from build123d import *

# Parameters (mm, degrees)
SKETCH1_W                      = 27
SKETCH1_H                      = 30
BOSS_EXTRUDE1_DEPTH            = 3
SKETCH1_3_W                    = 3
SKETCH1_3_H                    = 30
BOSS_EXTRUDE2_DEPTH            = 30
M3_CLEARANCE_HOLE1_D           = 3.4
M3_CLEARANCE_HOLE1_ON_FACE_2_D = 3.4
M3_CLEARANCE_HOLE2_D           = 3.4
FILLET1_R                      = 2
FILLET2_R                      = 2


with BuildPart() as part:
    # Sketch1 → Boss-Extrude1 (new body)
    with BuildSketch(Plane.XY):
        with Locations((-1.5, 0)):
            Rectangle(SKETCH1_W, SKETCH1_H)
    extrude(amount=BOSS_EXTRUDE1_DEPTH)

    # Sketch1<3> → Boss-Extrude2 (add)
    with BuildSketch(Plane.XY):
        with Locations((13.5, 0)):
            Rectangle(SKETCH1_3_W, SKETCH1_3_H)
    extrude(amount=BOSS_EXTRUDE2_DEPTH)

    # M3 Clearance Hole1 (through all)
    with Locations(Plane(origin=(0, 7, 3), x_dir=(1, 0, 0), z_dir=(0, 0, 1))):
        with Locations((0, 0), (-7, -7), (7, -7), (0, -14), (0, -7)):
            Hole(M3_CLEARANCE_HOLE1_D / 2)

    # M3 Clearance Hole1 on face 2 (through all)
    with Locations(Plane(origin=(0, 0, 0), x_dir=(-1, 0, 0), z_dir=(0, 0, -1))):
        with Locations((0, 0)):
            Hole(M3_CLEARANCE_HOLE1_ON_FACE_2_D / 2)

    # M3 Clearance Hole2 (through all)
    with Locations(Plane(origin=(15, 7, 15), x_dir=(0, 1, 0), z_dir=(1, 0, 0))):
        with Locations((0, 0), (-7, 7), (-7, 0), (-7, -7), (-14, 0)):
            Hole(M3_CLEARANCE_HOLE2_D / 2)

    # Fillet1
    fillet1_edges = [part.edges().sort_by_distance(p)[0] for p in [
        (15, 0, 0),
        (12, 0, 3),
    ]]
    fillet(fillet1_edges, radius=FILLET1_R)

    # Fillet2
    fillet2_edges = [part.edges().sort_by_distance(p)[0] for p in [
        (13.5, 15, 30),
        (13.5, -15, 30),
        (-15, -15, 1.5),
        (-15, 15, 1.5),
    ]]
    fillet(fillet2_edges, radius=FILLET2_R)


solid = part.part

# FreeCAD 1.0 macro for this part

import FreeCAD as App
import Part
import Sketcher


def edges_at(feature, points):
    """Names of the edges that pass closest to the given points."""
    edges = feature.Shape.Edges
    near = lambda p: min(range(len(edges)), key=lambda i: edges[i].distToShape(Part.Vertex(*p))[0])
    return sorted({f"Edge{near(p) + 1}" for p in points})


def add_polygon(sketch, points):
    """Adds a closed chain of lines whose ends are joined by coincident constraints."""
    first, n = sketch.GeometryCount, len(points)
    for a, b in zip(points, points[1:] + points[:1]):
        sketch.addGeometry(Part.LineSegment(App.Vector(*a, 0), App.Vector(*b, 0)), False)
    for i in range(n):
        sketch.addConstraint(Sketcher.Constraint("Coincident", first + i, 2, first + (i + 1) % n, 1))

doc = App.newDocument("Part")
params = doc.addObject("Spreadsheet::Sheet", "Params")
for row, (alias, value) in enumerate([
    ("sketch1_width", "27 mm"),
    ("sketch1_height", "30 mm"),
    ("pad1_length", "3 mm"),
    ("sketch2_width", "3 mm"),
    ("sketch2_height", "30 mm"),
    ("pad2_length", "30 mm"),
    ("sketch3_diameter", "3.4 mm"),
    ("hole_diameter", "3.4 mm"),
    ("sketch4_diameter", "3.4 mm"),
    ("hole2_diameter", "3.4 mm"),
    ("sketch5_diameter", "3.4 mm"),
    ("hole3_diameter", "3.4 mm"),
    ("fillet_radius", "2 mm"),
    ("fillet2_radius", "2 mm"),
], start=1):
    params.set(f"A{row}", alias)
    params.set(f"B{row}", "=" + value)
    params.setAlias(f"B{row}", alias)

body = doc.addObject("PartDesign::Body", "Body")

# Sketch on XY plane
sketch1 = body.newObject("Sketcher::SketchObject", "Sketch")
sketch1.AttachmentSupport = (doc.getObject("XY_Plane"), [""])
sketch1.MapMode = "FlatFace"
add_polygon(sketch1, [(-15, 15), (-15, -15), (12, -15), (12, 15)])  # lines 0-3
sketch1.addConstraint(Sketcher.Constraint("Vertical", 0))
sketch1.addConstraint(Sketcher.Constraint("Horizontal", 1))
sketch1.addConstraint(Sketcher.Constraint("Vertical", 2))
sketch1.addConstraint(Sketcher.Constraint("Horizontal", 3))
sketch1.addConstraint(Sketcher.Constraint("DistanceX", 1, 1, 1, 2, 27.0))
sketch1.addConstraint(Sketcher.Constraint("DistanceY", 0, 2, 0, 1, 30.0))
sketch1.addConstraint(Sketcher.Constraint("DistanceX", 0, 2, -1, 1, 15.0))
sketch1.addConstraint(Sketcher.Constraint("DistanceY", 0, 2, -1, 1, 15.0))
sketch1.setExpression("Constraints[8]", "Params.sketch1_width")
sketch1.setExpression("Constraints[9]", "Params.sketch1_height")
pad1 = body.newObject("PartDesign::Pad", "Pad")
pad1.Profile = sketch1
pad1.setExpression("Length", "Params.pad1_length")

# Sketch on XY plane
sketch2 = body.newObject("Sketcher::SketchObject", "Sketch001")
sketch2.AttachmentSupport = (doc.getObject("XY_Plane"), [""])
sketch2.MapMode = "FlatFace"
add_polygon(sketch2, [(12, 15), (12, -15), (15, -15), (15, 15)])  # lines 0-3
sketch2.addConstraint(Sketcher.Constraint("Vertical", 0))
sketch2.addConstraint(Sketcher.Constraint("Horizontal", 1))
sketch2.addConstraint(Sketcher.Constraint("Vertical", 2))
sketch2.addConstraint(Sketcher.Constraint("Horizontal", 3))
sketch2.addConstraint(Sketcher.Constraint("DistanceX", 1, 1, 1, 2, 3.0))
sketch2.addConstraint(Sketcher.Constraint("DistanceY", 0, 2, 0, 1, 30.0))
sketch2.addConstraint(Sketcher.Constraint("DistanceX", -1, 1, 0, 2, 12.0))
sketch2.addConstraint(Sketcher.Constraint("DistanceY", 0, 2, -1, 1, 15.0))
sketch2.setExpression("Constraints[8]", "Params.sketch2_width")
sketch2.setExpression("Constraints[9]", "Params.sketch2_height")
pad2 = body.newObject("PartDesign::Pad", "Pad001")
pad2.Profile = sketch2
pad2.setExpression("Length", "Params.pad2_length")

# Sketch on XY plane
sketch3 = body.newObject("Sketcher::SketchObject", "Sketch002")
sketch3.AttachmentSupport = (doc.getObject("XY_Plane"), [""])
sketch3.MapMode = "FlatFace"
sketch3.AttachmentOffset = App.Placement(App.Vector(0, 0, 3), App.Rotation())
sketch3.addGeometry(Part.Circle(App.Vector(0, 7, 0), App.Vector(0, 0, 1), 1.7), False)
sketch3.addGeometry(Part.Circle(App.Vector(-7, 0, 0), App.Vector(0, 0, 1), 1.7), False)
sketch3.addGeometry(Part.Circle(App.Vector(7, 0, 0), App.Vector(0, 0, 1), 1.7), False)
sketch3.addGeometry(Part.Circle(App.Vector(0, -7, 0), App.Vector(0, 0, 1), 1.7), False)
sketch3.addGeometry(Part.Circle(App.Vector(0, 0, 0), App.Vector(0, 0, 1), 1.7), False)
sketch3.addConstraint(Sketcher.Constraint("Coincident", 4, 3, -1, 1))
sketch3.addConstraint(Sketcher.Constraint("Equal", 0, 1))
sketch3.addConstraint(Sketcher.Constraint("Equal", 1, 2))
sketch3.addConstraint(Sketcher.Constraint("Equal", 2, 3))
sketch3.addConstraint(Sketcher.Constraint("Equal", 3, 4))
sketch3.addConstraint(Sketcher.Constraint("Symmetric", 1, 3, 2, 3, -1, 1))
sketch3.addConstraint(Sketcher.Constraint("Symmetric", 0, 3, 3, 3, -1, 1))
sketch3.addConstraint(Sketcher.Constraint("PointOnObject", 0, 3, -2))
sketch3.addConstraint(Sketcher.Constraint("PointOnObject", 1, 3, -1))
sketch3.addConstraint(Sketcher.Constraint("Diameter", 0, 3.4))
sketch3.addConstraint(Sketcher.Constraint("DistanceY", -1, 1, 0, 3, 7.0))
sketch3.addConstraint(Sketcher.Constraint("DistanceX", 1, 3, -1, 1, 7.0))
sketch3.setExpression("Constraints[9]", "Params.sketch3_diameter")
doc.recompute()
hole = body.newObject("PartDesign::Hole", "Hole")
hole.Profile = sketch3
hole.ThreadType = "None"
hole.setExpression("Diameter", "Params.hole_diameter")
hole.DepthType = "ThroughAll"

# Sketch on XY plane
sketch4 = body.newObject("Sketcher::SketchObject", "Sketch003")
sketch4.AttachmentSupport = (doc.getObject("XY_Plane"), [""])
sketch4.MapMode = "FlatFace"
sketch4.addGeometry(Part.Circle(App.Vector(0, 0, 0), App.Vector(0, 0, 1), 1.7), False)
sketch4.addConstraint(Sketcher.Constraint("Coincident", 0, 3, -1, 1))
sketch4.addConstraint(Sketcher.Constraint("Diameter", 0, 3.4))
sketch4.setExpression("Constraints[1]", "Params.sketch4_diameter")
doc.recompute()
hole2 = body.newObject("PartDesign::Hole", "Hole001")
hole2.Profile = sketch4
hole2.ThreadType = "None"
hole2.setExpression("Diameter", "Params.hole2_diameter")
hole2.DepthType = "ThroughAll"
hole2.Reversed = True

# Sketch on YZ plane
sketch5 = body.newObject("Sketcher::SketchObject", "Sketch004")
sketch5.AttachmentSupport = (doc.getObject("YZ_Plane"), [""])
sketch5.MapMode = "FlatFace"
sketch5.AttachmentOffset = App.Placement(App.Vector(0, 0, 15), App.Rotation())
sketch5.addGeometry(Part.Circle(App.Vector(7, 15, 0), App.Vector(0, 0, 1), 1.7), False)
sketch5.addGeometry(Part.Circle(App.Vector(0, 22, 0), App.Vector(0, 0, 1), 1.7), False)
sketch5.addGeometry(Part.Circle(App.Vector(0, 15, 0), App.Vector(0, 0, 1), 1.7), False)
sketch5.addGeometry(Part.Circle(App.Vector(0, 8, 0), App.Vector(0, 0, 1), 1.7), False)
sketch5.addGeometry(Part.Circle(App.Vector(-7, 15, 0), App.Vector(0, 0, 1), 1.7), False)
sketch5.addConstraint(Sketcher.Constraint("Equal", 0, 1))
sketch5.addConstraint(Sketcher.Constraint("Equal", 1, 2))
sketch5.addConstraint(Sketcher.Constraint("Equal", 2, 3))
sketch5.addConstraint(Sketcher.Constraint("Equal", 3, 4))
sketch5.addConstraint(Sketcher.Constraint("Symmetric", 0, 3, 4, 3, -2))
sketch5.addConstraint(Sketcher.Constraint("PointOnObject", 1, 3, -2))
sketch5.addConstraint(Sketcher.Constraint("PointOnObject", 2, 3, -2))
sketch5.addConstraint(Sketcher.Constraint("PointOnObject", 3, 3, -2))
sketch5.addConstraint(Sketcher.Constraint("Horizontal", 0, 3, 2, 3))
sketch5.addConstraint(Sketcher.Constraint("Diameter", 0, 3.4))
sketch5.addConstraint(Sketcher.Constraint("DistanceX", -1, 1, 0, 3, 7.0))
sketch5.addConstraint(Sketcher.Constraint("DistanceY", -1, 1, 0, 3, 15.0))
sketch5.addConstraint(Sketcher.Constraint("DistanceY", -1, 1, 1, 3, 22.0))
sketch5.addConstraint(Sketcher.Constraint("DistanceY", -1, 1, 3, 3, 8.0))
sketch5.setExpression("Constraints[9]", "Params.sketch5_diameter")
doc.recompute()
hole3 = body.newObject("PartDesign::Hole", "Hole002")
hole3.Profile = sketch5
hole3.ThreadType = "None"
hole3.setExpression("Diameter", "Params.hole3_diameter")
hole3.DepthType = "ThroughAll"
doc.recompute()

fillet = body.newObject("PartDesign::Fillet", "Fillet")
fillet.Base = (hole3, edges_at(hole3, [(15, 0, 0), (12, 0, 3)]))
fillet.setExpression("Radius", "Params.fillet_radius")
doc.recompute()

fillet2 = body.newObject("PartDesign::Fillet", "Fillet001")
fillet2.Base = (fillet, edges_at(fillet, [
    (13.5, 15, 30),
    (13.5, -15, 30),
    (-15, -15, 1.5),
    (-15, 15, 1.5),
]))
fillet2.setExpression("Radius", "Params.fillet2_radius")

doc.recompute()
